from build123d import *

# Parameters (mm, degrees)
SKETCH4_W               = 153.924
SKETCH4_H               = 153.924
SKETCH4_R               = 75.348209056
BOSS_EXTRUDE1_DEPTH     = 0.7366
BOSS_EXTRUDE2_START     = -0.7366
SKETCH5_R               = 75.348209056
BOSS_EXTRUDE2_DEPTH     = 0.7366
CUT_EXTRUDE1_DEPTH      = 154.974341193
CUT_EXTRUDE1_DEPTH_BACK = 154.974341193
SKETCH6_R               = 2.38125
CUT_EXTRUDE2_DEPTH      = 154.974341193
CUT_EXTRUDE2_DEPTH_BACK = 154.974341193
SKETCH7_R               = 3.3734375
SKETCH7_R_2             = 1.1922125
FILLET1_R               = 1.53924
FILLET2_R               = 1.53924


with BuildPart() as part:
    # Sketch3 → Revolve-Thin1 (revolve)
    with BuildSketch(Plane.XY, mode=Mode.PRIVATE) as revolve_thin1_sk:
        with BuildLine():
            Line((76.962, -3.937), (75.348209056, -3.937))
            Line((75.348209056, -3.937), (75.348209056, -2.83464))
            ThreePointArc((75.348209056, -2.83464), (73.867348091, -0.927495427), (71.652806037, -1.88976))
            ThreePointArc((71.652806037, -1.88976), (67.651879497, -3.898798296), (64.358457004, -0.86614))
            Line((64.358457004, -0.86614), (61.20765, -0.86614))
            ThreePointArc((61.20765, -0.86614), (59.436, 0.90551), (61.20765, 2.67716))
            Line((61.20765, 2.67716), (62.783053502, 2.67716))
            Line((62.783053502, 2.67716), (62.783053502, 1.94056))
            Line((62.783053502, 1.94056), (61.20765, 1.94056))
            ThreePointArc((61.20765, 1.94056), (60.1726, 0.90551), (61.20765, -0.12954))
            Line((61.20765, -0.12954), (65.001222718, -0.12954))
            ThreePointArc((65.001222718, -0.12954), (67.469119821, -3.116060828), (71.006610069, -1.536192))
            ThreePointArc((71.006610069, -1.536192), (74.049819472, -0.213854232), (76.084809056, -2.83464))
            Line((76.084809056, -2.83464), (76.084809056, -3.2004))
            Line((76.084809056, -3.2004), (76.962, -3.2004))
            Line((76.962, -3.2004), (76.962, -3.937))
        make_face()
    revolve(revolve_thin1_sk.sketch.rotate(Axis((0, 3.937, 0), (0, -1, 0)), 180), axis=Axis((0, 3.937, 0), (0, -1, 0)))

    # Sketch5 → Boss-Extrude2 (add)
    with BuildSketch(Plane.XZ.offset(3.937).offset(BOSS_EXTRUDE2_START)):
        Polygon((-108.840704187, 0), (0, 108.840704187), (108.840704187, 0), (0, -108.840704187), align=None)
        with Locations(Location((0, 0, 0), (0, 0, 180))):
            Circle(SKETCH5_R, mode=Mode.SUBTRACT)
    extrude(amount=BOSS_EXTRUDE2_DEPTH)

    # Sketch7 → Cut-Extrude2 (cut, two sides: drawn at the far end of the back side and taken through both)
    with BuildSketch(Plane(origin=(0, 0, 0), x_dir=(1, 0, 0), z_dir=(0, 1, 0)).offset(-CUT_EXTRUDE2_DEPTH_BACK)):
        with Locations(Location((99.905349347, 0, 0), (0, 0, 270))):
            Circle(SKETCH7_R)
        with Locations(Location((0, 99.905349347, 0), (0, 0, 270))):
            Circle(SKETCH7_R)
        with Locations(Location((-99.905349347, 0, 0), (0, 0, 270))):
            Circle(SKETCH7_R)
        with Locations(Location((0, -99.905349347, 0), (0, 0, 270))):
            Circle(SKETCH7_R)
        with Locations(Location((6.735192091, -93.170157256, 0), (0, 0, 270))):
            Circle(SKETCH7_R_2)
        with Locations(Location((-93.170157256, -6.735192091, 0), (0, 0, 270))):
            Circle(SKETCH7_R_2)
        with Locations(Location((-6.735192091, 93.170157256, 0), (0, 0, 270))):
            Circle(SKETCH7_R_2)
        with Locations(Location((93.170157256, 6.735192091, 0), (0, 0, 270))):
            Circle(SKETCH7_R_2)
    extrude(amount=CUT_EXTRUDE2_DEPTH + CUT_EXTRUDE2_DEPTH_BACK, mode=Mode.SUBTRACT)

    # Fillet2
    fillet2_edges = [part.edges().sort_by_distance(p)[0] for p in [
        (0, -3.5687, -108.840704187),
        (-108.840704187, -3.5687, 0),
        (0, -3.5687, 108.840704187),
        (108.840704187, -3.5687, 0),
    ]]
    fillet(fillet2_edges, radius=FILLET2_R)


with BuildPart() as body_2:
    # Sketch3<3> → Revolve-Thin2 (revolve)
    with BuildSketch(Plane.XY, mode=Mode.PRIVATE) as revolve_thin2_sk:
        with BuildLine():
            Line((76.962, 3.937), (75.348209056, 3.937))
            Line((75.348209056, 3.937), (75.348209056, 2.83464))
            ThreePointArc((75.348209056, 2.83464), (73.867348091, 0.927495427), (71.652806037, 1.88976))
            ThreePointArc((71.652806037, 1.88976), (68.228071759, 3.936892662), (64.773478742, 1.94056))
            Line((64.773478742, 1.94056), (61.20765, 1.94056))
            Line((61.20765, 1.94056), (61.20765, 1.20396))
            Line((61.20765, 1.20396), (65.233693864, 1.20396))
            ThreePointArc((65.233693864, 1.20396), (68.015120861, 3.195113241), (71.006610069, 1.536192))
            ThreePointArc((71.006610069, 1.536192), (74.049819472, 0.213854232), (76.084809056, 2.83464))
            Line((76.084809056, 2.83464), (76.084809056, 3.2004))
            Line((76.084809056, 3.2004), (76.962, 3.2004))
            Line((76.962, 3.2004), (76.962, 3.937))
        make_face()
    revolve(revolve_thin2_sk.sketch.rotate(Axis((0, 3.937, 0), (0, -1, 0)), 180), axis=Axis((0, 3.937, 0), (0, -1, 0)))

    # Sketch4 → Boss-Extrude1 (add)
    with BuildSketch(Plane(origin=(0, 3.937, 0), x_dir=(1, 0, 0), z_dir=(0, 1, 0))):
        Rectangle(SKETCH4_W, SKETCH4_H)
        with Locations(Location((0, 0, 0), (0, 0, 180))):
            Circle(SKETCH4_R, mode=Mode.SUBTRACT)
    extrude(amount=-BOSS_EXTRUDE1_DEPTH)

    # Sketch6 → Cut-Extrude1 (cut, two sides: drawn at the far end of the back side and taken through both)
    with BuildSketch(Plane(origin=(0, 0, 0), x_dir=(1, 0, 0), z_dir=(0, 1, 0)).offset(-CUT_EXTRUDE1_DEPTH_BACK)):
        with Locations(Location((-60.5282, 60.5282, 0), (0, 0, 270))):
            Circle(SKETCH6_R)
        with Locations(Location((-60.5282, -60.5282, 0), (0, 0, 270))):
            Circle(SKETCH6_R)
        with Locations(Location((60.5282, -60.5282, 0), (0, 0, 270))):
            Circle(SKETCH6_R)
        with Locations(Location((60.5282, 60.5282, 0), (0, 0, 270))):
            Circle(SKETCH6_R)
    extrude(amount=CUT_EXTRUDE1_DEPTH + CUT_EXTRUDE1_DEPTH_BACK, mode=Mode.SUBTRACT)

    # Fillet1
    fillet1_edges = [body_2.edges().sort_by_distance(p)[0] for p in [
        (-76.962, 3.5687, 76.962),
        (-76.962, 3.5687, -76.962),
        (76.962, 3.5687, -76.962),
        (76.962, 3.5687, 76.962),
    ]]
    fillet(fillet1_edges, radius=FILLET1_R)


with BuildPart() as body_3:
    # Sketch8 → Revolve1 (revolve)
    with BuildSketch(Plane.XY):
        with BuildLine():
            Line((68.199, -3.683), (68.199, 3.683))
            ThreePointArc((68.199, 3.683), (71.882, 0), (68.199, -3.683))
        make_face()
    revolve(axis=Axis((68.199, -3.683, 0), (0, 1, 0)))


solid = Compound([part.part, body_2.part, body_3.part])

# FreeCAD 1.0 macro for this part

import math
import FreeCAD as App
import Part
import Sketcher
Q = App.Units.Quantity


def edges_at(feature, points):
    """Names of the edges that pass closest to the given points."""
    edges = feature.Shape.Edges
    near = lambda p: min(range(len(edges)), key=lambda i: edges[i].distToShape(Part.Vertex(*p))[0])
    return sorted({f"Edge{near(p) + 1}" for p in points})


def add_polygon(sketch, points):
    """Adds a closed chain of lines whose ends are joined by coincident constraints."""
    first, n = sketch.GeometryCount, len(points)
    for a, b in zip(points, points[1:] + points[:1]):
        sketch.addGeometry(Part.LineSegment(App.Vector(*a, 0), App.Vector(*b, 0)), False)
    for i in range(n):
        sketch.addConstraint(Sketcher.Constraint("Coincident", first + i, 2, first + (i + 1) % n, 1))

doc = App.newDocument("Part")
params = doc.addObject("Spreadsheet::Sheet", "Params")
for row, (alias, value) in enumerate([
    ("sketch1_radius", "0.126 in"),
    ("sketch1_radius2", "0.155 in"),
    ("sketch1_height", "0.029 in"),
    ("revolution_angle", "360 deg"),
    ("sketch2_length", "6.06 in"),
    ("pad1_length", "0.029 in"),
    ("sketch3_diameter", "0.265625 in"),
    ("fillet_radius", "0.0606 in"),
    ("sketch4_radius", "0.155 in"),
    ("sketch4_radius2", "0.126 in"),
    ("sketch4_height", "0.029 in"),
    ("revolution2_angle", "360 deg"),
    ("sketch5_width", "6.06 in"),
    ("pad2_length", "0.029 in"),
    ("sketch6_diameter", "0.1875 in"),
    ("fillet2_radius", "0.0606 in"),
    ("sketch7_radius", "0.145 in"),
    ("revolution3_angle", "360 deg"),
], start=1):
    params.set(f"A{row}", alias)
    params.set(f"B{row}", "=" + value)
    params.setAlias(f"B{row}", alias)

body = doc.addObject("PartDesign::Body", "Body")

# Sketch on XY plane
sketch1 = body.newObject("Sketcher::SketchObject", "Sketch")
sketch1.AttachmentSupport = (doc.getObject("XY_Plane"), [""])
sketch1.MapMode = "FlatFace"
sketch1.addGeometry([
    Part.LineSegment(App.Vector(75.35, -3.94, 0), App.Vector(76.96, -3.94, 0)),  # 0
    Part.LineSegment(App.Vector(76.96, -3.94, 0), App.Vector(76.96, -3.2, 0)),  # 1
    Part.LineSegment(App.Vector(76.96, -3.2, 0), App.Vector(76.08, -3.2, 0)),  # 2
    Part.LineSegment(App.Vector(76.08, -3.2, 0), App.Vector(76.08, -2.83, 0)),  # 3
    Part.ArcOfCircle(Part.Circle(App.Vector(73.38, -2.83, 0), App.Vector(0, 0, 1), 2.71), math.radians(0), math.radians(151)),  # 4
    Part.ArcOfCircle(Part.Circle(App.Vector(68.2, 0, 0), App.Vector(0, 0, 1), 3.2), math.radians(-178), math.radians(-29)),  # 5
    Part.LineSegment(App.Vector(65, -0.13, 0), App.Vector(61.21, -0.13, 0)),  # 6
    Part.ArcOfCircle(Part.Circle(App.Vector(61.21, 0.91, 0), App.Vector(0, 0, 1), 1.04), math.radians(90), math.radians(270)),  # 7
    Part.LineSegment(App.Vector(61.21, 1.94, 0), App.Vector(62.78, 1.94, 0)),  # 8
    Part.LineSegment(App.Vector(62.78, 1.94, 0), App.Vector(62.78, 2.68, 0)),  # 9
    Part.LineSegment(App.Vector(62.78, 2.68, 0), App.Vector(61.21, 2.68, 0)),  # 10
    Part.ArcOfCircle(Part.Circle(App.Vector(61.21, 0.91, 0), App.Vector(0, 0, 1), 1.77), math.radians(90), math.radians(270)),  # 11
    Part.LineSegment(App.Vector(61.21, -0.87, 0), App.Vector(64.36, -0.87, 0)),  # 12
    Part.ArcOfCircle(Part.Circle(App.Vector(68.2, 0, 0), App.Vector(0, 0, 1), 3.94), math.radians(-167), math.radians(-29)),  # 13
    Part.ArcOfCircle(Part.Circle(App.Vector(73.38, -2.83, 0), App.Vector(0, 0, 1), 1.97), math.radians(0), math.radians(151)),  # 14
    Part.LineSegment(App.Vector(75.35, -2.83, 0), App.Vector(75.35, -3.94, 0)),  # 15
], False)
sketch1.addConstraint([
    Sketcher.Constraint("Coincident", 0, 2, 1, 1),
    Sketcher.Constraint("Coincident", 1, 2, 2, 1),
    Sketcher.Constraint("Coincident", 2, 2, 3, 1),
    Sketcher.Constraint("Tangent", 3, 2, 4, 1),
    Sketcher.Constraint("Tangent", 4, 2, 5, 2),
    Sketcher.Constraint("Coincident", 5, 1, 6, 1),
    Sketcher.Constraint("Tangent", 6, 2, 7, 2),
    Sketcher.Constraint("Tangent", 7, 1, 8, 1),
    Sketcher.Constraint("Coincident", 8, 2, 9, 1),
    Sketcher.Constraint("Coincident", 9, 2, 10, 1),
    Sketcher.Constraint("Tangent", 10, 2, 11, 1),
    Sketcher.Constraint("Tangent", 11, 2, 12, 1),
    Sketcher.Constraint("Coincident", 12, 2, 13, 1),
    Sketcher.Constraint("Tangent", 13, 2, 14, 2),
    Sketcher.Constraint("Tangent", 14, 1, 15, 1),
    Sketcher.Constraint("Coincident", 15, 2, 0, 1),
    Sketcher.Constraint("Horizontal", 0),
    Sketcher.Constraint("Vertical", 1),
    Sketcher.Constraint("Horizontal", 2),
    Sketcher.Constraint("Vertical", 3),
    Sketcher.Constraint("Horizontal", 6),
    Sketcher.Constraint("Horizontal", 8),
    Sketcher.Constraint("Vertical", 9),
    Sketcher.Constraint("Horizontal", 10),
    Sketcher.Constraint("Horizontal", 12),
    Sketcher.Constraint("Vertical", 15),
    Sketcher.Constraint("Coincident", 11, 3, 7, 3),
    Sketcher.Constraint("Coincident", 13, 3, 5, 3),
    Sketcher.Constraint("Coincident", 14, 3, 4, 3),
    Sketcher.Constraint("PointOnObject", 5, 3, -1),
    Sketcher.Constraint("Equal", 1, 9),
    Sketcher.Constraint("Radius", 5, Q("0.126 in")),
    Sketcher.Constraint("Radius", 13, Q("0.155 in")),
    Sketcher.Constraint("Radius", 4, Q("0.1065 in")),
    Sketcher.Constraint("DistanceY", 1, 1, 1, 2, Q("0.029 in")),
    Sketcher.Constraint("DistanceX", -1, 1, 0, 2, Q("3.03 in")),
    Sketcher.Constraint("DistanceY", 3, 1, 3, 2, Q("0.0144 in")),
    Sketcher.Constraint("DistanceX", -1, 1, 5, 3, Q("2.685 in")),
    Sketcher.Constraint("DistanceY", 0, 2, -1, 1, Q("0.155 in")),
    Sketcher.Constraint("Radius", 7, 1.03505),
    Sketcher.Constraint("DistanceY", 5, 1, -1, 1, Q("0.0051 in")),
    Sketcher.Constraint("DistanceX", 6, 2, 6, 1, 3.793573),
    Sketcher.Constraint("DistanceX", 8, 1, 8, 2, 1.575404),
])
sketch1.setExpression("Constraints[31]", "Params.sketch1_radius")
sketch1.setExpression("Constraints[32]", "Params.sketch1_radius2")
sketch1.setExpression("Constraints[34]", "Params.sketch1_height")
revolution = body.newObject("PartDesign::Revolution", "Revolution")
revolution.Profile = sketch1
revolution.ReferenceAxis = (sketch1, ["V_Axis"])
revolution.setExpression("Angle", "Params.revolution_angle")

# Sketch on XZ plane
sketch2 = body.newObject("Sketcher::SketchObject", "Sketch001")
sketch2.AttachmentSupport = (doc.getObject("XZ_Plane"), [""])
sketch2.MapMode = "FlatFace"
sketch2.AttachmentOffset = App.Placement(App.Vector(0, 0, 0.126 * 25.4), App.Rotation())
add_polygon(sketch2, [(0, 109), (-109, 0), (0, -109), (109, 0)])  # lines 0-3
sketch2.addGeometry(Part.Circle(App.Vector(0, 0, 0), App.Vector(0, 0, 1), 75), False)  # 4
sketch2.addConstraint([
    Sketcher.Constraint("Coincident", 4, 3, -1, 1),
    Sketcher.Constraint("Symmetric", 0, 2, 2, 2, -1, 1),
    Sketcher.Constraint("Symmetric", 1, 2, 3, 2, -1, 1),
    Sketcher.Constraint("PointOnObject", 0, 2, -1),
    Sketcher.Constraint("PointOnObject", 1, 2, -2),
    Sketcher.Constraint("Perpendicular", 0, 1),
    Sketcher.Constraint("Distance", 0, Q("6.06 in")),
    Sketcher.Constraint("Diameter", 4, 150.696418),
])
sketch2.setExpression("Constraints[10]", "Params.sketch2_length")
pad1 = body.newObject("PartDesign::Pad", "Pad")
pad1.Profile = sketch2
pad1.setExpression("Length", "Params.pad1_length")

# Sketch on XZ plane
sketch3 = body.newObject("Sketcher::SketchObject", "Sketch002")
sketch3.AttachmentSupport = (doc.getObject("XZ_Plane"), [""])
sketch3.MapMode = "FlatFace"
sketch3.addGeometry([
    Part.Circle(App.Vector(99.9, 0, 0), App.Vector(0, 0, 1), 3.4),  # 0
    Part.Circle(App.Vector(0, -99.9, 0), App.Vector(0, 0, 1), 3.4),  # 1
    Part.Circle(App.Vector(-99.9, 0, 0), App.Vector(0, 0, 1), 3.4),  # 2
    Part.Circle(App.Vector(0, 99.9, 0), App.Vector(0, 0, 1), 3.4),  # 3
    Part.Circle(App.Vector(6.7, 93.2, 0), App.Vector(0, 0, 1), 1.2),  # 4
    Part.Circle(App.Vector(-93.2, 6.7, 0), App.Vector(0, 0, 1), 1.2),  # 5
    Part.Circle(App.Vector(-6.7, -93.2, 0), App.Vector(0, 0, 1), 1.2),  # 6
    Part.Circle(App.Vector(93.2, -6.7, 0), App.Vector(0, 0, 1), 1.2),  # 7
], False)
sketch3.addConstraint([
    Sketcher.Constraint("Equal", 0, 1),
    Sketcher.Constraint("Equal", 1, 2),
    Sketcher.Constraint("Equal", 2, 3),
    Sketcher.Constraint("Equal", 4, 5),
    Sketcher.Constraint("Equal", 5, 6),
    Sketcher.Constraint("Equal", 6, 7),
    Sketcher.Constraint("Symmetric", 0, 3, 2, 3, -1, 1),
    Sketcher.Constraint("Symmetric", 1, 3, 3, 3, -1, 1),
    Sketcher.Constraint("Symmetric", 4, 3, 6, 3, -1, 1),
    Sketcher.Constraint("Symmetric", 5, 3, 7, 3, -1, 1),
    Sketcher.Constraint("PointOnObject", 0, 3, -1),
    Sketcher.Constraint("PointOnObject", 1, 3, -2),
    Sketcher.Constraint("Diameter", 0, Q("0.265625 in")),
    Sketcher.Constraint("Diameter", 4, 2.384425),
    Sketcher.Constraint("DistanceX", 2, 3, 0, 3, 199.810699),
    Sketcher.Constraint("DistanceY", 1, 3, 3, 3, 199.810699),
    Sketcher.Constraint("DistanceX", 2, 3, 4, 3, 106.640541),
    Sketcher.Constraint("DistanceX", 5, 3, 4, 3, 99.905349),
    Sketcher.Constraint("DistanceY", 1, 3, 5, 3, 106.640541),
    Sketcher.Constraint("DistanceY", 6, 3, 5, 3, 99.905349),
])
sketch3.setExpression("Constraints[12]", "Params.sketch3_diameter")
pocket1 = body.newObject("PartDesign::Pocket", "Pocket")
pocket1.Profile = sketch3
pocket1.Type = "ThroughAll"
pocket1.Midplane = True
doc.recompute()

fillet = body.newObject("PartDesign::Fillet", "Fillet")
fillet.Base = (pocket1, edges_at(pocket1, [
    (0, -3.569, -108.841),
    (-108.841, -3.569, 0),
    (0, -3.569, 108.841),
    (108.841, -3.569, 0),
]))
fillet.setExpression("Radius", "Params.fillet_radius")
body2 = doc.addObject("PartDesign::Body", "Body001")

# Sketch on XY plane
sketch4 = body2.newObject("Sketcher::SketchObject", "Sketch003")
sketch4.AttachmentSupport = (doc.getObject("XY_Plane001"), [""])
sketch4.MapMode = "FlatFace"
sketch4.addGeometry([
    Part.LineSegment(App.Vector(76.96, 3.94, 0), App.Vector(75.35, 3.94, 0)),  # 0
    Part.LineSegment(App.Vector(75.35, 3.94, 0), App.Vector(75.35, 2.83, 0)),  # 1
    Part.ArcOfCircle(Part.Circle(App.Vector(73.38, 2.83, 0), App.Vector(0, 0, 1), 1.97), math.radians(-151), math.radians(0)),  # 2
    Part.ArcOfCircle(Part.Circle(App.Vector(68.2, 0, 0), App.Vector(0, 0, 1), 3.94), math.radians(29), math.radians(150)),  # 3
    Part.LineSegment(App.Vector(64.77, 1.94, 0), App.Vector(61.21, 1.94, 0)),  # 4
    Part.LineSegment(App.Vector(61.21, 1.94, 0), App.Vector(61.21, 1.2, 0)),  # 5
    Part.LineSegment(App.Vector(61.21, 1.2, 0), App.Vector(65.23, 1.2, 0)),  # 6
    Part.ArcOfCircle(Part.Circle(App.Vector(68.2, 0, 0), App.Vector(0, 0, 1), 3.2), math.radians(29), math.radians(158)),  # 7
    Part.ArcOfCircle(Part.Circle(App.Vector(73.38, 2.83, 0), App.Vector(0, 0, 1), 2.71), math.radians(-151), math.radians(0)),  # 8
    Part.LineSegment(App.Vector(76.08, 2.83, 0), App.Vector(76.08, 3.2, 0)),  # 9
    Part.LineSegment(App.Vector(76.08, 3.2, 0), App.Vector(76.96, 3.2, 0)),  # 10
    Part.LineSegment(App.Vector(76.96, 3.2, 0), App.Vector(76.96, 3.94, 0)),  # 11
], False)
sketch4.addConstraint([
    Sketcher.Constraint("Coincident", 0, 2, 1, 1),
    Sketcher.Constraint("Tangent", 1, 2, 2, 2),
    Sketcher.Constraint("Tangent", 2, 1, 3, 1),
    Sketcher.Constraint("Coincident", 3, 2, 4, 1),
    Sketcher.Constraint("Coincident", 4, 2, 5, 1),
    Sketcher.Constraint("Coincident", 5, 2, 6, 1),
    Sketcher.Constraint("Coincident", 6, 2, 7, 2),
    Sketcher.Constraint("Tangent", 7, 1, 8, 1),
    Sketcher.Constraint("Tangent", 8, 2, 9, 1),
    Sketcher.Constraint("Coincident", 9, 2, 10, 1),
    Sketcher.Constraint("Coincident", 10, 2, 11, 1),
    Sketcher.Constraint("Coincident", 11, 2, 0, 1),
    Sketcher.Constraint("Horizontal", 0),
    Sketcher.Constraint("Vertical", 1),
    Sketcher.Constraint("Horizontal", 4),
    Sketcher.Constraint("Vertical", 5),
    Sketcher.Constraint("Horizontal", 6),
    Sketcher.Constraint("Vertical", 9),
    Sketcher.Constraint("Horizontal", 10),
    Sketcher.Constraint("Vertical", 11),
    Sketcher.Constraint("Coincident", 7, 3, 3, 3),
    Sketcher.Constraint("Coincident", 8, 3, 2, 3),
    Sketcher.Constraint("PointOnObject", 3, 3, -1),
    Sketcher.Constraint("Equal", 5, 11),
    Sketcher.Constraint("Radius", 3, Q("0.155 in")),
    Sketcher.Constraint("Radius", 7, Q("0.126 in")),
    Sketcher.Constraint("Radius", 2, Q("0.0775 in")),
    Sketcher.Constraint("DistanceY", 5, 2, 5, 1, Q("0.029 in")),
    Sketcher.Constraint("DistanceX", -1, 1, 10, 2, Q("3.03 in")),
    Sketcher.Constraint("DistanceY", 1, 2, 1, 1, Q("0.0434 in")),
    Sketcher.Constraint("DistanceX", -1, 1, 3, 3, Q("2.685 in")),
    Sketcher.Constraint("DistanceY", -1, 1, 0, 2, Q("0.155 in")),
    Sketcher.Constraint("DistanceY", 2, 1, 3, 2, Q("0.002 in")),
    Sketcher.Constraint("DistanceX", 4, 2, 4, 1, 3.565829),
])
sketch4.setExpression("Constraints[24]", "Params.sketch4_radius")
sketch4.setExpression("Constraints[25]", "Params.sketch4_radius2")
sketch4.setExpression("Constraints[27]", "Params.sketch4_height")
revolution2 = body2.newObject("PartDesign::Revolution", "Revolution001")
revolution2.Profile = sketch4
revolution2.ReferenceAxis = (sketch4, ["V_Axis"])
revolution2.setExpression("Angle", "Params.revolution2_angle")

# Sketch on XZ plane
sketch5 = body2.newObject("Sketcher::SketchObject", "Sketch004")
sketch5.AttachmentSupport = (doc.getObject("XZ_Plane001"), [""])
sketch5.MapMode = "FlatFace"
sketch5.AttachmentOffset = App.Placement(App.Vector(0, 0, -0.155 * 25.4), App.Rotation())
add_polygon(sketch5, [(-77, -77), (-77, 77), (77, 77), (77, -77)])  # lines 0-3
sketch5.addGeometry(Part.Circle(App.Vector(0, 0, 0), App.Vector(0, 0, 1), 75), False)  # 4
sketch5.addConstraint([
    Sketcher.Constraint("Vertical", 0),
    Sketcher.Constraint("Horizontal", 1),
    Sketcher.Constraint("Vertical", 2),
    Sketcher.Constraint("Horizontal", 3),
    Sketcher.Constraint("Coincident", 4, 3, -1, 1),
    Sketcher.Constraint("Symmetric", 0, 2, 2, 2, -1, 1),
    Sketcher.Constraint("Equal", 3, 0),
    Sketcher.Constraint("DistanceX", 1, 1, 1, 2, Q("6.06 in")),
    Sketcher.Constraint("Diameter", 4, 150.696418),
])
sketch5.setExpression("Constraints[11]", "Params.sketch5_width")
pad2 = body2.newObject("PartDesign::Pad", "Pad001")
pad2.Profile = sketch5
pad2.setExpression("Length", "Params.pad2_length")

# Sketch on XZ plane
sketch6 = body2.newObject("Sketcher::SketchObject", "Sketch005")
sketch6.AttachmentSupport = (doc.getObject("XZ_Plane001"), [""])
sketch6.MapMode = "FlatFace"
sketch6.addGeometry([
    Part.Circle(App.Vector(-60.5, -60.5, 0), App.Vector(0, 0, 1), 2.4),
    Part.Circle(App.Vector(-60.5, 60.5, 0), App.Vector(0, 0, 1), 2.4),
    Part.Circle(App.Vector(60.5, 60.5, 0), App.Vector(0, 0, 1), 2.4),
    Part.Circle(App.Vector(60.5, -60.5, 0), App.Vector(0, 0, 1), 2.4),
], False)
sketch6.addConstraint([
    Sketcher.Constraint("Equal", 0, 1),
    Sketcher.Constraint("Equal", 1, 2),
    Sketcher.Constraint("Equal", 2, 3),
    Sketcher.Constraint("Symmetric", 0, 3, 2, 3, -1, 1),
    Sketcher.Constraint("Symmetric", 1, 3, 3, 3, -1, 1),
    Sketcher.Constraint("Symmetric", 1, 3, 2, 3, -2),
    Sketcher.Constraint("Diameter", 0, Q("0.1875 in")),
    Sketcher.Constraint("DistanceX", 0, 3, -1, 1, Q("2.383 in")),
    Sketcher.Constraint("DistanceY", 0, 3, -1, 1, Q("2.383 in")),
])
sketch6.setExpression("Constraints[6]", "Params.sketch6_diameter")
pocket2 = body2.newObject("PartDesign::Pocket", "Pocket001")
pocket2.Profile = sketch6
pocket2.Type = "ThroughAll"
pocket2.Midplane = True
doc.recompute()

fillet2 = body2.newObject("PartDesign::Fillet", "Fillet001")
fillet2.Base = (pocket2, edges_at(pocket2, [
    (-76.962, 3.569, 76.962),
    (-76.962, 3.569, -76.962),
    (76.962, 3.569, -76.962),
    (76.962, 3.569, 76.962),
]))
fillet2.setExpression("Radius", "Params.fillet2_radius")
body3 = doc.addObject("PartDesign::Body", "Body002")

# Sketch on XY plane
sketch7 = body3.newObject("Sketcher::SketchObject", "Sketch006")
sketch7.AttachmentSupport = (doc.getObject("XY_Plane002"), [""])
sketch7.MapMode = "FlatFace"
sketch7.addGeometry([
    Part.LineSegment(App.Vector(68.2, 3.7, 0), App.Vector(68.2, -3.7, 0)),
    Part.ArcOfCircle(Part.Circle(App.Vector(68.2, 0, 0), App.Vector(0, 0, 1), 3.7), math.radians(-90), math.radians(90)),
], False)
sketch7.addGeometry(Part.LineSegment(App.Vector(68.2, -3.7, 0), App.Vector(68.2, 3.7, 0)), True)  # axis
sketch7.addConstraint([
    Sketcher.Constraint("Coincident", 0, 1, 1, 2),
    Sketcher.Constraint("Coincident", 1, 1, 0, 2),
    Sketcher.Constraint("Vertical", 0),
    Sketcher.Constraint("Vertical", 2),
    Sketcher.Constraint("Coincident", 2, 1, 1, 1),
    Sketcher.Constraint("PointOnObject", 1, 3, -1),
    Sketcher.Constraint("Vertical", 1, 3, 0, 1),
    Sketcher.Constraint("Equal", 0, 2),
    Sketcher.Constraint("Radius", 1, Q("0.145 in")),
    Sketcher.Constraint("DistanceX", -1, 1, 1, 3, Q("2.685 in")),
])
sketch7.setExpression("Constraints[8]", "Params.sketch7_radius")
revolution3 = body3.newObject("PartDesign::Revolution", "Revolution002")
revolution3.Profile = sketch7
revolution3.ReferenceAxis = (sketch7, ["Axis0"])
revolution3.setExpression("Angle", "Params.revolution3_angle")

doc.recompute()
